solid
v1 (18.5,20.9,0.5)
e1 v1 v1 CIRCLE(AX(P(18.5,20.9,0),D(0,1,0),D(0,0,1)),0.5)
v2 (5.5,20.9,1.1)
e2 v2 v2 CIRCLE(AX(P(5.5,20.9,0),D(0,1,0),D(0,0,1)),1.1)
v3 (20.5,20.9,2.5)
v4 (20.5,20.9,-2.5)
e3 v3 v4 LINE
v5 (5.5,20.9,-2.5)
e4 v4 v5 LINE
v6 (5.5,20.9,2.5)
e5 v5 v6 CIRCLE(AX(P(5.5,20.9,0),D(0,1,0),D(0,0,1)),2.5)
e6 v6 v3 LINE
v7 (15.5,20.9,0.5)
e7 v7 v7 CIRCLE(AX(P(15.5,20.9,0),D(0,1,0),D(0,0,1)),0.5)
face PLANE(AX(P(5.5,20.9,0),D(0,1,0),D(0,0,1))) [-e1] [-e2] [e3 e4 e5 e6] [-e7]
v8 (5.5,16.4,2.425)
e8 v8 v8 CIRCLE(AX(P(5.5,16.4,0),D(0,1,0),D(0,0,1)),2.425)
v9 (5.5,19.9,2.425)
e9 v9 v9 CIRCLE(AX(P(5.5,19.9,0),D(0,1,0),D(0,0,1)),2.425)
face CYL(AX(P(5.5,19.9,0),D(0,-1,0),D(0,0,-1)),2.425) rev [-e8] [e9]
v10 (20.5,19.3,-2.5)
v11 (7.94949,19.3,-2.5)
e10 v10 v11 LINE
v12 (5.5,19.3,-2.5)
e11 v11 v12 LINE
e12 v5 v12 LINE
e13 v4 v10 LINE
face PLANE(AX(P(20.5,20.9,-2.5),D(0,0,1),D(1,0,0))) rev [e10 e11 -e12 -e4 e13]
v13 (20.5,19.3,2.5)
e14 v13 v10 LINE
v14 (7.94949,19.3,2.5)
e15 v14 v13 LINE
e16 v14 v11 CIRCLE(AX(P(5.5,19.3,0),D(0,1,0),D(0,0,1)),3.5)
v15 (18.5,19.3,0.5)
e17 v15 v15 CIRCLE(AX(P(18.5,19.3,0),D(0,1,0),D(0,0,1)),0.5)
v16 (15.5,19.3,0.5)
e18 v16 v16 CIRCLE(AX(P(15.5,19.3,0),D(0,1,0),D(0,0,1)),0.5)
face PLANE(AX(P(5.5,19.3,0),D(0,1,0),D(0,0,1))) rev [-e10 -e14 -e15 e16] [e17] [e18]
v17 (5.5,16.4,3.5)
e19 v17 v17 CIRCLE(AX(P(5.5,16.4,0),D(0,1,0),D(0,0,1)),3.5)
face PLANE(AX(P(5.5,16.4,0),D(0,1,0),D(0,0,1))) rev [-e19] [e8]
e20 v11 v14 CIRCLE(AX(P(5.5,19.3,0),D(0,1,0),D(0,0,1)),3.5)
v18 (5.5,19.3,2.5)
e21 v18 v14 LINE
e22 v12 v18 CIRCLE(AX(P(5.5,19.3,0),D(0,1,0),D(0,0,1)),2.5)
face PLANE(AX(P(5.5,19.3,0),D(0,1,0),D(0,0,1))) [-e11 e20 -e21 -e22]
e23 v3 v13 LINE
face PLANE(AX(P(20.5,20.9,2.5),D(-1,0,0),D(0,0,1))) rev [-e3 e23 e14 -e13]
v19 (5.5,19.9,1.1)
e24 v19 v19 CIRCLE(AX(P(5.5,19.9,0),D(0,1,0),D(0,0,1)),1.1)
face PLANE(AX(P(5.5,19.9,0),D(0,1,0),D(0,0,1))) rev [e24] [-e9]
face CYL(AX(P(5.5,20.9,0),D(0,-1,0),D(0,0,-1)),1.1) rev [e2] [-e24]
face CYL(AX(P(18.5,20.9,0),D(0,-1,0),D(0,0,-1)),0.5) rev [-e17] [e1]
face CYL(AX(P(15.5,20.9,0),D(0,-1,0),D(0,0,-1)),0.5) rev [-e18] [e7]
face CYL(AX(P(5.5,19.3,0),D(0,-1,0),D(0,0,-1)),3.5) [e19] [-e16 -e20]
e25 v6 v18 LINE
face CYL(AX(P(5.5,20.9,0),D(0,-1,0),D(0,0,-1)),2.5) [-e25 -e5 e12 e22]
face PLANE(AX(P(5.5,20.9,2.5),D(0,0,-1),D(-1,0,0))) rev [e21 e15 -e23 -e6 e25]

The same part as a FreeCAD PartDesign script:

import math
import FreeCAD as App
import Part
import Sketcher

doc = App.newDocument("Part")
body = doc.addObject("PartDesign::Body", "Body")

# Sketch on XZ plane
sketch1 = doc.addObject("Sketcher::SketchObject", "Sketch")
body.addObject(sketch1)
sketch1.AttachmentSupport = (doc.XZ_Plane, [""])
sketch1.MapMode = "FlatFace"
sketch1.AttachmentOffset = App.Placement(App.Vector(0, 0, -19.3), App.Rotation())
sketch1.addGeometry(Part.LineSegment(App.Vector(5.5, 2.5, 0), App.Vector(20.5, 2.5, 0)), False)
sketch1.addGeometry(Part.LineSegment(App.Vector(20.5, 2.5, 0), App.Vector(20.5, -2.5, 0)), False)
sketch1.addGeometry(Part.LineSegment(App.Vector(20.5, -2.5, 0), App.Vector(5.5, -2.5, 0)), False)
sketch1.addGeometry(Part.ArcOfCircle(Part.Circle(App.Vector(5.5, 0, 0), App.Vector(0, 0, 1), 2.5), math.radians(90), math.radians(270)), False)
sketch1.addConstraint(Sketcher.Constraint("Coincident", 0, 2, 1, 1))
sketch1.addConstraint(Sketcher.Constraint("Coincident", 1, 2, 2, 1))
sketch1.addConstraint(Sketcher.Constraint("Tangent", 2, 2, 3, 2))
sketch1.addConstraint(Sketcher.Constraint("Tangent", 3, 1, 0, 1))
sketch1.addConstraint(Sketcher.Constraint("Horizontal", 0))
sketch1.addConstraint(Sketcher.Constraint("Vertical", 1))
sketch1.addConstraint(Sketcher.Constraint("Horizontal", 2))
sketch1.addConstraint(Sketcher.Constraint("PointOnObject", 3, 3, -1))
sketch1.addConstraint(Sketcher.Constraint("Radius", 3, 2.5))
sketch1.addConstraint(Sketcher.Constraint("DistanceX", 0, 1, 0, 2, 15.0))
sketch1.addConstraint(Sketcher.Constraint("DistanceX", -1, 1, 3, 3, 5.5))
pad1 = doc.addObject("PartDesign::Pad", "Pad")
body.addObject(pad1)
pad1.Profile = sketch1
pad1.Length = 1.6
pad1.Reversed = True

# Sketch on XZ plane
sketch2 = doc.addObject("Sketcher::SketchObject", "Sketch001")
body.addObject(sketch2)
sketch2.AttachmentSupport = (doc.XZ_Plane, [""])
sketch2.MapMode = "FlatFace"
sketch2.AttachmentOffset = App.Placement(App.Vector(0, 0, -16.4), App.Rotation())
sketch2.addGeometry(Part.Circle(App.Vector(5.5, 0, 0), App.Vector(0, 0, 1), 3.5), False)
sketch2.addConstraint(Sketcher.Constraint("PointOnObject", 0, 3, -1))
sketch2.addConstraint(Sketcher.Constraint("Diameter", 0, 7.0))
sketch2.addConstraint(Sketcher.Constraint("DistanceX", -1, 1, 0, 3, 5.5))
pad2 = doc.addObject("PartDesign::Pad", "Pad001")
body.addObject(pad2)
pad2.Profile = sketch2
pad2.Length = 2.9
pad2.Reversed = True

# Sketch on XZ plane
sketch3 = doc.addObject("Sketcher::SketchObject", "Sketch002")
body.addObject(sketch3)
sketch3.AttachmentSupport = (doc.XZ_Plane, [""])
sketch3.MapMode = "FlatFace"
sketch3.AttachmentOffset = App.Placement(App.Vector(0, 0, -16.4), App.Rotation())
sketch3.addGeometry(Part.Circle(App.Vector(5.5, 0, 0), App.Vector(0, 0, 1), 2.4), False)
sketch3.addConstraint(Sketcher.Constraint("PointOnObject", 0, 3, -1))
sketch3.addConstraint(Sketcher.Constraint("Diameter", 0, 4.85))
sketch3.addConstraint(Sketcher.Constraint("DistanceX", -1, 1, 0, 3, 5.5))
pocket1 = doc.addObject("PartDesign::Pocket", "Pocket")
body.addObject(pocket1)
pocket1.Profile = sketch3
pocket1.Length = 3.5

# Sketch on XZ plane
sketch4 = doc.addObject("Sketcher::SketchObject", "Sketch003")
body.addObject(sketch4)
sketch4.AttachmentSupport = (doc.XZ_Plane, [""])
sketch4.MapMode = "FlatFace"
sketch4.AttachmentOffset = App.Placement(App.Vector(0, 0, -19.9), App.Rotation())
sketch4.addGeometry(Part.Circle(App.Vector(5.5, 0, 0), App.Vector(0, 0, 1), 1.1), False)
sketch4.addConstraint(Sketcher.Constraint("PointOnObject", 0, 3, -1))
sketch4.addConstraint(Sketcher.Constraint("Diameter", 0, 2.2))
sketch4.addConstraint(Sketcher.Constraint("DistanceX", -1, 1, 0, 3, 5.5))
pocket2 = doc.addObject("PartDesign::Pocket", "Pocket001")
body.addObject(pocket2)
pocket2.Profile = sketch4
pocket2.Length = 1

# Sketch on XZ plane
sketch5 = doc.addObject("Sketcher::SketchObject", "Sketch004")
body.addObject(sketch5)
sketch5.AttachmentSupport = (doc.XZ_Plane, [""])
sketch5.MapMode = "FlatFace"
sketch5.AttachmentOffset = App.Placement(App.Vector(0, 0, -19.3), App.Rotation())
sketch5.addGeometry(Part.Circle(App.Vector(15.5, 0, 0), App.Vector(0, 0, 1), 0.5), False)
sketch5.addConstraint(Sketcher.Constraint("PointOnObject", 0, 3, -1))
sketch5.addConstraint(Sketcher.Constraint("Diameter", 0, 1.0))
sketch5.addConstraint(Sketcher.Constraint("DistanceX", -1, 1, 0, 3, 15.5))
pocket3 = doc.addObject("PartDesign::Pocket", "Pocket002")
body.addObject(pocket3)
pocket3.Profile = sketch5
pocket3.Length = 1.6

# Sketch on XZ plane
sketch6 = doc.addObject("Sketcher::SketchObject", "Sketch005")
body.addObject(sketch6)
sketch6.AttachmentSupport = (doc.XZ_Plane, [""])
sketch6.MapMode = "FlatFace"
sketch6.AttachmentOffset = App.Placement(App.Vector(0, 0, -19.3), App.Rotation())
sketch6.addGeometry(Part.Circle(App.Vector(18.5, 0, 0), App.Vector(0, 0, 1), 0.5), False)
sketch6.addConstraint(Sketcher.Constraint("PointOnObject", 0, 3, -1))
sketch6.addConstraint(Sketcher.Constraint("Diameter", 0, 1.0))
sketch6.addConstraint(Sketcher.Constraint("DistanceX", -1, 1, 0, 3, 18.5))
pocket4 = doc.addObject("PartDesign::Pocket", "Pocket003")
body.addObject(pocket4)
pocket4.Profile = sketch6
pocket4.Length = 1.6

doc.recompute()
